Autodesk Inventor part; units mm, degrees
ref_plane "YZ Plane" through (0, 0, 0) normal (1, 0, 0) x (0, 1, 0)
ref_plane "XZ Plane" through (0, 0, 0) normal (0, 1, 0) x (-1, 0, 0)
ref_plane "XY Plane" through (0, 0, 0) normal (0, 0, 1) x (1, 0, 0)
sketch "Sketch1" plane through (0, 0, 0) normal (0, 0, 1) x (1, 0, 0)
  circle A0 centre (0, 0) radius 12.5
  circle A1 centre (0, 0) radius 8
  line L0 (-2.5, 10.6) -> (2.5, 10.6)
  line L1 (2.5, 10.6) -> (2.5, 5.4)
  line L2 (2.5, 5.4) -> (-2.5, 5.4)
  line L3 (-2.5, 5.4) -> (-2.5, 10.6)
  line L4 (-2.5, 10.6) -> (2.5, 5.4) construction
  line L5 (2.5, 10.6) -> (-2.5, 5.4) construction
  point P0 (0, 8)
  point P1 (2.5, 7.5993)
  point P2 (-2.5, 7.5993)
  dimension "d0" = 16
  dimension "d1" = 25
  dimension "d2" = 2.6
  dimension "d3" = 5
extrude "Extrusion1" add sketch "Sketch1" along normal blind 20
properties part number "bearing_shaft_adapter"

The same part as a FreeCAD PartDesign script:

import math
import FreeCAD as App
import Part
import Sketcher

V = App.Vector
Q = App.Units.Quantity

doc = App.newDocument("Part")
body = doc.addObject("PartDesign::Body", "Body")

# Sketch on XY plane
sketch1 = doc.addObject("Sketcher::SketchObject", "Sketch")
body.addObject(sketch1)
sketch1.AttachmentSupport = (doc.XY_Plane, [""])
sketch1.MapMode = "FlatFace"
sketch1.addGeometry([
    Part.Circle(V(0, 0, 0), V(0, 0, 1), 12.5),  # 0
    Part.ArcOfCircle(Part.Circle(V(0, 0, 0), V(0, 0, 1), 8), math.radians(108), math.radians(432)),  # 1
    Part.LineSegment(V(-2.5, 7.6, 0), V(-2.5, 10.6, 0)),  # 2
    Part.LineSegment(V(-2.5, 10.6, 0), V(2.5, 10.6, 0)),  # 3
    Part.LineSegment(V(2.5, 10.6, 0), V(2.5, 7.6, 0)),  # 4
], False)
sketch1.addConstraint([
    Sketcher.Constraint("Coincident", 1, 1, 2, 1),
    Sketcher.Constraint("Coincident", 2, 2, 3, 1),
    Sketcher.Constraint("Coincident", 3, 2, 4, 1),
    Sketcher.Constraint("Coincident", 4, 2, 1, 2),
    Sketcher.Constraint("Vertical", 2),
    Sketcher.Constraint("Horizontal", 3),
    Sketcher.Constraint("Vertical", 4),
    Sketcher.Constraint("Coincident", 0, 3, -1, 1),
    Sketcher.Constraint("Coincident", 1, 3, -1, 1),
    Sketcher.Constraint("Horizontal", 1, 1, 4, 2),
    Sketcher.Constraint("Diameter", 0, Q("25 mm")),
    Sketcher.Constraint("Radius", 1, Q("8 mm")),
    Sketcher.Constraint("DistanceX", 3, 1, 3, 2, Q("5 mm")),
    Sketcher.Constraint("DistanceY", -1, 1, 2, 2, Q("10.6 mm")),
])
pad1 = doc.addObject("PartDesign::Pad", "Pad")
body.addObject(pad1)
pad1.Profile = sketch1
pad1.Length = 20

doc.recompute()
